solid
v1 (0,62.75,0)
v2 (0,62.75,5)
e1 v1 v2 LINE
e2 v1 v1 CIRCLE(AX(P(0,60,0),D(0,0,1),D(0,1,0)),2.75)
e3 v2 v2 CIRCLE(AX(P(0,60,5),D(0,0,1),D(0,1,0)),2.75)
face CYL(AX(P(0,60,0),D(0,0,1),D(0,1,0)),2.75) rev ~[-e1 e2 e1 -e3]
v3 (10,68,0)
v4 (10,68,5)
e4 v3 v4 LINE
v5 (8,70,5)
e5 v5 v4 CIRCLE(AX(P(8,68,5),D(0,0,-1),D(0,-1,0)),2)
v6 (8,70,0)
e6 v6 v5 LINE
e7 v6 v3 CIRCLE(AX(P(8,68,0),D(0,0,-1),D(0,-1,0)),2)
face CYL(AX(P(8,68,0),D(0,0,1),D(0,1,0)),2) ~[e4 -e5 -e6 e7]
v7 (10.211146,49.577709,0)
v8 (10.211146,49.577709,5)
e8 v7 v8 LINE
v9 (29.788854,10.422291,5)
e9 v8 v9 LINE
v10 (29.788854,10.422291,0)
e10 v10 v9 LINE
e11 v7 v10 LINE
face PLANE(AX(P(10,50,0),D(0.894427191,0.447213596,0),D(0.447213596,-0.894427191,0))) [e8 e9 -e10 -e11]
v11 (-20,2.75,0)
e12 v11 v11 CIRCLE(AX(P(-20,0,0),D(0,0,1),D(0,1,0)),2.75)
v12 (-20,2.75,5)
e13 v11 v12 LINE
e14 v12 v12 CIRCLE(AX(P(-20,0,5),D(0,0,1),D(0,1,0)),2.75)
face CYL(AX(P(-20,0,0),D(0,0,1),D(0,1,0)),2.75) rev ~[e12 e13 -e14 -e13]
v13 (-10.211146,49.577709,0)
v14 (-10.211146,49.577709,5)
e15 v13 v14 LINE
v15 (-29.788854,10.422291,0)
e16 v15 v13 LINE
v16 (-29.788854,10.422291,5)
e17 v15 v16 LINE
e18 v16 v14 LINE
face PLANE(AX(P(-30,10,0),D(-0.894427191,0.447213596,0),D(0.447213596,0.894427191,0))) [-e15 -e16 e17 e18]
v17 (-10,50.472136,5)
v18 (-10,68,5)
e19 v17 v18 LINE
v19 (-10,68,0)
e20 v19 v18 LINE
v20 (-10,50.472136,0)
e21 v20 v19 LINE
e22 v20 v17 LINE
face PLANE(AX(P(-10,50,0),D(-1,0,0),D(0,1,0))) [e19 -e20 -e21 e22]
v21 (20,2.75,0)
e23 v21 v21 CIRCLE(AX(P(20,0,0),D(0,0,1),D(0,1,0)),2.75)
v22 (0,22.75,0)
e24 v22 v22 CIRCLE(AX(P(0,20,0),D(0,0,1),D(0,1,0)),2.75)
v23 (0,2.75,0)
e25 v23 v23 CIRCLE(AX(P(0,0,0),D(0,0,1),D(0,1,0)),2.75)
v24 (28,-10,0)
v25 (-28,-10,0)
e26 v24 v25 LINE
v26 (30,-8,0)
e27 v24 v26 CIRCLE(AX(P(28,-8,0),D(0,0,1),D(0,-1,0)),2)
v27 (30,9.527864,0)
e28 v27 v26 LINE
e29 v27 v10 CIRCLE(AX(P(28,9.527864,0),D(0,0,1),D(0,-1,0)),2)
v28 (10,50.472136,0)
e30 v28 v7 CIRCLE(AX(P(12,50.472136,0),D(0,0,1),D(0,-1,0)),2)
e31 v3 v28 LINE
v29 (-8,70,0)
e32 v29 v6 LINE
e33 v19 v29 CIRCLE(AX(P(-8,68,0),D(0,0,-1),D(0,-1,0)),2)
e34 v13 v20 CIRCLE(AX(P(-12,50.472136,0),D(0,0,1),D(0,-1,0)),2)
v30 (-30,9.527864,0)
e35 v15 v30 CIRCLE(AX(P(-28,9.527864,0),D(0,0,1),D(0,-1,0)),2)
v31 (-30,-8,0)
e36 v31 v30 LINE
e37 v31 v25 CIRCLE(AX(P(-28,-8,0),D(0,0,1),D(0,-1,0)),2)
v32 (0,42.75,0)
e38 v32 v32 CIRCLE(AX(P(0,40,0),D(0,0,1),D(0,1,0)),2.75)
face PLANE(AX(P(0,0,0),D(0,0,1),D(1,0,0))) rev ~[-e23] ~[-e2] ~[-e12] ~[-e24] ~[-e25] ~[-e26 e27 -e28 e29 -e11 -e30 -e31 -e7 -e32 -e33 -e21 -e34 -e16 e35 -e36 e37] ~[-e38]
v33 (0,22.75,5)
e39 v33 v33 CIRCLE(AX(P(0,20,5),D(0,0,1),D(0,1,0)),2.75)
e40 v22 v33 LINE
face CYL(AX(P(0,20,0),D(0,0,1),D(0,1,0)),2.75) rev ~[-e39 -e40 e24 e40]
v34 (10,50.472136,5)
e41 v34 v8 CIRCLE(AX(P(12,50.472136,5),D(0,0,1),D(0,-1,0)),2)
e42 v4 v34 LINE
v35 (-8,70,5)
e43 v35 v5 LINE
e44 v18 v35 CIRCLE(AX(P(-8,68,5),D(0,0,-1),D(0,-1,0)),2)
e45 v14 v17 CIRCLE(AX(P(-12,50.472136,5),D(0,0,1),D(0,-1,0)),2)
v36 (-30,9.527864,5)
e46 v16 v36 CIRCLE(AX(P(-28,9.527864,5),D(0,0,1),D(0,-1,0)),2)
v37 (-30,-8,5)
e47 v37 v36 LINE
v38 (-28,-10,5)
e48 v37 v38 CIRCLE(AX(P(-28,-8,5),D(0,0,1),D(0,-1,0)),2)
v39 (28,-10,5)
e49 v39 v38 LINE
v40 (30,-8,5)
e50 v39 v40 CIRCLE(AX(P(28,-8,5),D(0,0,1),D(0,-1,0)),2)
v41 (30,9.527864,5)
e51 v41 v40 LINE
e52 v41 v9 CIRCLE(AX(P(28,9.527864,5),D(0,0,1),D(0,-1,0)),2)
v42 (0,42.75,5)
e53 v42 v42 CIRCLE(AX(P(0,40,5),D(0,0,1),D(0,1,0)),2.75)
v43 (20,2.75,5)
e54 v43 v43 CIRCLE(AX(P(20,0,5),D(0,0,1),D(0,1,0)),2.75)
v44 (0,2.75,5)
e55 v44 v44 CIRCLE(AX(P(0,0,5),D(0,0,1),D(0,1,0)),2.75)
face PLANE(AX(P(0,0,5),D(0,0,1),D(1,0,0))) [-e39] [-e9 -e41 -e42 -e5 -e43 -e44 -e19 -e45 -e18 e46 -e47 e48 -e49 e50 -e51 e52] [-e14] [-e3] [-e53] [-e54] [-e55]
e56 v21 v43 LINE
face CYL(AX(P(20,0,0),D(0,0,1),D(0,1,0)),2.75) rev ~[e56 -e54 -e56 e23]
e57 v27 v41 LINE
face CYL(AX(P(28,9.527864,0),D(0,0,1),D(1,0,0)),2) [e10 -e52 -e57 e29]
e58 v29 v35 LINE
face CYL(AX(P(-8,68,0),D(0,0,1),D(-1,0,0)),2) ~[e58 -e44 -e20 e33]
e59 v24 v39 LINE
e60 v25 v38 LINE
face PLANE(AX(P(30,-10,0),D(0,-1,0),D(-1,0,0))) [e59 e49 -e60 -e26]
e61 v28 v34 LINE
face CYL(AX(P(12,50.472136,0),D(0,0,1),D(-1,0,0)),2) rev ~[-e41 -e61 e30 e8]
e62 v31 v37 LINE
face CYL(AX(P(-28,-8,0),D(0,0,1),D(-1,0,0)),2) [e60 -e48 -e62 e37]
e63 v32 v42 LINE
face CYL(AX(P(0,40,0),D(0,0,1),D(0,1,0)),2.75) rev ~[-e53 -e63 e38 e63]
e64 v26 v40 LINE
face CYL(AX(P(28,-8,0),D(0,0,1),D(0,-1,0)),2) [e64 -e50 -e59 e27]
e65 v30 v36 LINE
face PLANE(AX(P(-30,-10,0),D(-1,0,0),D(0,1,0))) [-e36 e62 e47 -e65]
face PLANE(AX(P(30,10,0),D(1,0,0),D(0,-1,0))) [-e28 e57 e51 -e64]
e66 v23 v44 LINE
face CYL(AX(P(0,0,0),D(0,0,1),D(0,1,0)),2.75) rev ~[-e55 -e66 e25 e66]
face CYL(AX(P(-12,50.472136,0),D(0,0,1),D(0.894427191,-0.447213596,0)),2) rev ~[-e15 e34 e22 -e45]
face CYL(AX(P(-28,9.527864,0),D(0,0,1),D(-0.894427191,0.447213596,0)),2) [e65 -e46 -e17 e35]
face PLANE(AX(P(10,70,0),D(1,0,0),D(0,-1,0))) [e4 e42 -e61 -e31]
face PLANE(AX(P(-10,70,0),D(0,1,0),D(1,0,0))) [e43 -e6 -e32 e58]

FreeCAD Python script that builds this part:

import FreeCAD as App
import Part
import Sketcher
from FreeCAD import Vector
Q = App.Units.Quantity


def edges_at(feature, points):
    """Names of the edges that pass closest to the given points."""
    edges = feature.Shape.Edges
    near = lambda p: min(range(len(edges)), key=lambda i: edges[i].distToShape(Part.Vertex(*p))[0])
    return sorted({f"Edge{near(p) + 1}" for p in points})


def add_polygon(sketch, points):
    """Adds a closed chain of lines whose ends are joined by coincident constraints."""
    first, n = sketch.GeometryCount, len(points)
    for a, b in zip(points, points[1:] + points[:1]):
        sketch.addGeometry(Part.LineSegment(App.Vector(*a, 0), App.Vector(*b, 0)), False)
    for i in range(n):
        sketch.addConstraint(Sketcher.Constraint("Coincident", first + i, 2, first + (i + 1) % n, 1))

doc = App.newDocument("Part")
body = doc.addObject("PartDesign::Body", "Body")

# Sketch on XY plane
sketch1 = body.newObject("Sketcher::SketchObject", "Sketch")
sketch1.AttachmentSupport = (doc.getObject("XY_Plane"), [""])
sketch1.MapMode = "FlatFace"
add_polygon(sketch1, [(-10, 50), (-30, 10), (-30, -10), (30, -10), (30, 10), (10, 50), (10, 70), (-10, 70)])  # lines 0-7
sketch1.addConstraint(Sketcher.Constraint("Vertical", 1))
sketch1.addConstraint(Sketcher.Constraint("Horizontal", 2))
sketch1.addConstraint(Sketcher.Constraint("Vertical", 3))
sketch1.addConstraint(Sketcher.Constraint("Vertical", 5))
sketch1.addConstraint(Sketcher.Constraint("Horizontal", 6))
sketch1.addConstraint(Sketcher.Constraint("Vertical", 7))
sketch1.addConstraint(Sketcher.Constraint("Symmetric", 0, 2, 2, 2, -1, 1))
sketch1.addConstraint(Sketcher.Constraint("Symmetric", 4, 2, 7, 2, -2))
sketch1.addConstraint(Sketcher.Constraint("Horizontal", 0, 2, 3, 2))
sketch1.addConstraint(Sketcher.Constraint("Equal", 6, 1))
sketch1.addConstraint(Sketcher.Constraint("Equal", 3, 5))
sketch1.addConstraint(Sketcher.Constraint("DistanceX", 2, 1, 2, 2, Q("60 mm")))
sketch1.addConstraint(Sketcher.Constraint("DistanceX", 6, 2, 6, 1, Q("20 mm")))
sketch1.addConstraint(Sketcher.Constraint("DistanceY", 2, 2, 4, 2, Q("60 mm")))
pad1 = body.newObject("PartDesign::Pad", "Pad")
pad1.Profile = sketch1
pad1.Length = 5

# Sketch on XY plane
sketch2 = body.newObject("Sketcher::SketchObject", "Sketch001")
sketch2.AttachmentSupport = (doc.getObject("XY_Plane"), [""])
sketch2.MapMode = "FlatFace"
sketch2.addGeometry(Part.Circle(Vector(0, 40, 0), Vector(0, 0, 1), 2.8), False)
sketch2.addGeometry(Part.Circle(Vector(0, 20, 0), Vector(0, 0, 1), 2.8), False)
sketch2.addGeometry(Part.Circle(Vector(0, 60, 0), Vector(0, 0, 1), 2.8), False)
sketch2.addGeometry(Part.Circle(Vector(-20, 0, 0), Vector(0, 0, 1), 2.8), False)
sketch2.addGeometry(Part.Circle(Vector(0, 0, 0), Vector(0, 0, 1), 2.8), False)
sketch2.addGeometry(Part.Circle(Vector(20, 0, 0), Vector(0, 0, 1), 2.8), False)
sketch2.addConstraint(Sketcher.Constraint("Coincident", 4, 3, -1, 1))
sketch2.addConstraint(Sketcher.Constraint("Equal", 0, 1))
sketch2.addConstraint(Sketcher.Constraint("Equal", 1, 2))
sketch2.addConstraint(Sketcher.Constraint("Equal", 2, 3))
sketch2.addConstraint(Sketcher.Constraint("Equal", 3, 4))
sketch2.addConstraint(Sketcher.Constraint("Equal", 4, 5))
sketch2.addConstraint(Sketcher.Constraint("Symmetric", 3, 3, 5, 3, -1, 1))
sketch2.addConstraint(Sketcher.Constraint("PointOnObject", 0, 3, -2))
sketch2.addConstraint(Sketcher.Constraint("PointOnObject", 1, 3, -2))
sketch2.addConstraint(Sketcher.Constraint("PointOnObject", 2, 3, -2))
sketch2.addConstraint(Sketcher.Constraint("PointOnObject", 3, 3, -1))
sketch2.addConstraint(Sketcher.Constraint("Diameter", 0, Q("5.5 mm")))
sketch2.addConstraint(Sketcher.Constraint("DistanceY", -1, 1, 0, 3, Q("40 mm")))
sketch2.addConstraint(Sketcher.Constraint("DistanceY", -1, 1, 1, 3, Q("20 mm")))
sketch2.addConstraint(Sketcher.Constraint("DistanceY", -1, 1, 2, 3, Q("60 mm")))
sketch2.addConstraint(Sketcher.Constraint("DistanceX", 3, 3, -1, 1, Q("20 mm")))
doc.recompute()
hole = body.newObject("PartDesign::Hole", "Hole")
hole.Profile = sketch2
hole.ThreadType = "None"
hole.Diameter = 5.5
hole.DepthType = "ThroughAll"
hole.Reversed = True
doc.recompute()

fillet = body.newObject("PartDesign::Fillet", "Fillet")
fillet.Base = (hole, edges_at(hole, [
    (-10, 70, 2.5),
    (-30, 10, 2.5),
    (-30, -10, 2.5),
    (30, -10, 2.5),
    (30, 10, 2.5),
    (10, 70, 2.5),
    (10, 50, 2.5),
    (-10, 50, 2.5),
]))
fillet.Radius = 2

doc.recompute()
